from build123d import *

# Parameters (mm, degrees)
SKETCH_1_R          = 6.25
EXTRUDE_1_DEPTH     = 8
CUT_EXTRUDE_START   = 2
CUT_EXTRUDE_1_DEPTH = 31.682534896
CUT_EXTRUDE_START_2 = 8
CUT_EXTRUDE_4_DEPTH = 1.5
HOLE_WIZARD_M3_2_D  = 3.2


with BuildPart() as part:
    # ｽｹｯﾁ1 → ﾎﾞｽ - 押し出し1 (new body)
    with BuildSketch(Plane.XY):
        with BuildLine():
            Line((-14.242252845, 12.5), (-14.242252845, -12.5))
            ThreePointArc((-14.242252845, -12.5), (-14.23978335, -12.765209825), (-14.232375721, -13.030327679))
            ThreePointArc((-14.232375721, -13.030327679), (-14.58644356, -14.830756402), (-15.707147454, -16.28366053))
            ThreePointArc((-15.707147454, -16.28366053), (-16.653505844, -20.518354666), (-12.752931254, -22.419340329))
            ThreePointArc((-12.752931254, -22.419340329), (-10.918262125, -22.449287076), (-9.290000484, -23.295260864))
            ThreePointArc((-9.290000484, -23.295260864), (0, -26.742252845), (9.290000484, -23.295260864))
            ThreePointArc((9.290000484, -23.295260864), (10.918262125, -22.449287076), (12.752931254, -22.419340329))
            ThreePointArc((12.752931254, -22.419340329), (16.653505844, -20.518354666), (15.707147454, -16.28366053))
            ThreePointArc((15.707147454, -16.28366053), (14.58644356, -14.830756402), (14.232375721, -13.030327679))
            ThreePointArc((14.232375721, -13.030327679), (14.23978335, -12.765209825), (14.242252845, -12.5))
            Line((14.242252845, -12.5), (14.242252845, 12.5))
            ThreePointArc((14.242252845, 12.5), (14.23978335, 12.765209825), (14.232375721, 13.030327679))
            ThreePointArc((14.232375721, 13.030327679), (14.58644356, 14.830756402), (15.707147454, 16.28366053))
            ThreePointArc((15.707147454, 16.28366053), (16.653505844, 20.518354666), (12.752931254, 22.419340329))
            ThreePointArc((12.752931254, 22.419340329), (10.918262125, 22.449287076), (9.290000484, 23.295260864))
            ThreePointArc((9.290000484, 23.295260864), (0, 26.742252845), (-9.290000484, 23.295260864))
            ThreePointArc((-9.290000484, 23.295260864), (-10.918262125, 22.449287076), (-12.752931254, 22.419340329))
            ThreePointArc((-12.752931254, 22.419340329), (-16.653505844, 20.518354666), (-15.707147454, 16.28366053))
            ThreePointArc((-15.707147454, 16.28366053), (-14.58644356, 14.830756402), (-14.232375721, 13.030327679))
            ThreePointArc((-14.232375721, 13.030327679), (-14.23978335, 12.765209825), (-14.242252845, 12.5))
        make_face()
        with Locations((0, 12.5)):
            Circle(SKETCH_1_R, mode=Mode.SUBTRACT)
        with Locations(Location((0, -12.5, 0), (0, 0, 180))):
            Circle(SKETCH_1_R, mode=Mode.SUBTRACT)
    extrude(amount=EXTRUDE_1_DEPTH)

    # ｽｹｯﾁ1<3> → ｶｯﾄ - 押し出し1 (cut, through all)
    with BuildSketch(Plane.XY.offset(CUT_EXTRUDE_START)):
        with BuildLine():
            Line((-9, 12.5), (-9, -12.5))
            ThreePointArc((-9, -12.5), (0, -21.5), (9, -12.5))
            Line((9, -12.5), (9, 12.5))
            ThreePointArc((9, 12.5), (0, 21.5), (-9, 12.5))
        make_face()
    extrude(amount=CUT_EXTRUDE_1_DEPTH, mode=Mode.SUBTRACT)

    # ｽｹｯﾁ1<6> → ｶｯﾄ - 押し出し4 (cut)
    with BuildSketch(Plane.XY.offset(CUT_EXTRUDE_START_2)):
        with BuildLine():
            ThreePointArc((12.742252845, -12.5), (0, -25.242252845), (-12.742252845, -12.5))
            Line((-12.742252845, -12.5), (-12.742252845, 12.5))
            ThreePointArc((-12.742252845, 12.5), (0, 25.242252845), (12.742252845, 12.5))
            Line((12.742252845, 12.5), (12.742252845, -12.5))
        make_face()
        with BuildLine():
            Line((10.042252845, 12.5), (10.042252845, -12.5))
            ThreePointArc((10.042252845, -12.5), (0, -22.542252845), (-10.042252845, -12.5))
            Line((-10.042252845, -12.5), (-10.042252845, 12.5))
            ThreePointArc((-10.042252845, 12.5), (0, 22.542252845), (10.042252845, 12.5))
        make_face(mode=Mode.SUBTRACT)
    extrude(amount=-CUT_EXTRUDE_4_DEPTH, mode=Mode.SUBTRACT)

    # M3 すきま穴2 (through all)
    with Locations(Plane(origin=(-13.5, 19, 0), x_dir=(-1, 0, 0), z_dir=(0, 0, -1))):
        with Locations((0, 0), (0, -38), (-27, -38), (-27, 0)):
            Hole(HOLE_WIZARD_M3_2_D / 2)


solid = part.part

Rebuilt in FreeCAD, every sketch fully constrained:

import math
import FreeCAD as App
import Part
import Sketcher

V = App.Vector
Q = App.Units.Quantity

doc = App.newDocument("Part")
params = doc.addObject("Spreadsheet::Sheet", "Params")
for row, (alias, value) in enumerate([
    ("sketch1_radius", "4 mm"),
    ("sketch1_diameter", "12.5 mm"),
    ("sketch1_radius2", "3.5 mm"),
    ("sketch1_height", "25 mm"),
    ("pad1_length", "8 mm"),
    ("sketch2_radius", "9 mm"),
    ("sketch2_height", "25 mm"),
    ("sketch3_height", "25 mm"),
    ("pocket2_length", "1.5 mm"),
    ("sketch4_diameter", "3.2 mm"),
    ("hole_diameter", "3.2 mm"),
], start=1):
    params.set(f"A{row}", alias)
    params.set(f"B{row}", "=" + value)
    params.setAlias(f"B{row}", alias)

body = doc.addObject("PartDesign::Body", "Body")

# Sketch on XY plane
sketch1 = doc.addObject("Sketcher::SketchObject", "Sketch")
body.addObject(sketch1)
sketch1.AttachmentSupport = (doc.XY_Plane, [""])
sketch1.MapMode = "FlatFace"
sketch1.addGeometry([
    Part.LineSegment(V(-14.2, 12.5, 0), V(-14.2, -12.5, 0)),  # 0
    Part.ArcOfCircle(Part.Circle(V(0, -12.5, 0), V(0, 0, 1), 14.2), math.radians(180), math.radians(182.13)),  # 1
    Part.ArcOfCircle(Part.Circle(V(-18.2, -13.2, 0), V(0, 0, 1), 4), math.radians(-51), math.radians(2)),  # 2
    Part.ArcOfCircle(Part.Circle(V(-13.5, -19, 0), V(0, 0, 1), 3.5), math.radians(129), math.radians(282)),  # 3
    Part.ArcOfCircle(Part.Circle(V(-11.9, -26.3, 0), V(0, 0, 1), 4), math.radians(49), math.radians(102)),  # 4
    Part.ArcOfCircle(Part.Circle(V(0, -12.5, 0), V(0, 0, 1), 14.2), math.radians(-131), math.radians(-49)),  # 5
    Part.ArcOfCircle(Part.Circle(V(11.9, -26.3, 0), V(0, 0, 1), 4), math.radians(78), math.radians(131)),  # 6
    Part.ArcOfCircle(Part.Circle(V(13.5, -19, 0), V(0, 0, 1), 3.5), math.radians(-102), math.radians(51)),  # 7
    Part.ArcOfCircle(Part.Circle(V(18.2, -13.2, 0), V(0, 0, 1), 4), math.radians(178), math.radians(231)),  # 8
    Part.ArcOfCircle(Part.Circle(V(0, -12.5, 0), V(0, 0, 1), 14.2), math.radians(-2.13), math.radians(0)),  # 9
    Part.LineSegment(V(14.2, -12.5, 0), V(14.2, 12.5, 0)),  # 10
    Part.ArcOfCircle(Part.Circle(V(0, 12.5, 0), V(0, 0, 1), 14.2), math.radians(0), math.radians(2.13)),  # 11
    Part.ArcOfCircle(Part.Circle(V(18.2, 13.2, 0), V(0, 0, 1), 4), math.radians(129), math.radians(182)),  # 12
    Part.ArcOfCircle(Part.Circle(V(13.5, 19, 0), V(0, 0, 1), 3.5), math.radians(-51), math.radians(102)),  # 13
    Part.ArcOfCircle(Part.Circle(V(11.9, 26.3, 0), V(0, 0, 1), 4), math.radians(-131), math.radians(-78)),  # 14
    Part.ArcOfCircle(Part.Circle(V(0, 12.5, 0), V(0, 0, 1), 14.2), math.radians(49), math.radians(131)),  # 15
    Part.ArcOfCircle(Part.Circle(V(-11.9, 26.3, 0), V(0, 0, 1), 4), math.radians(-102), math.radians(-49)),  # 16
    Part.ArcOfCircle(Part.Circle(V(-13.5, 19, 0), V(0, 0, 1), 3.5), math.radians(78), math.radians(231)),  # 17
    Part.ArcOfCircle(Part.Circle(V(-18.2, 13.2, 0), V(0, 0, 1), 4), math.radians(-2), math.radians(51)),  # 18
    Part.ArcOfCircle(Part.Circle(V(0, 12.5, 0), V(0, 0, 1), 14.2), math.radians(177.87), math.radians(180)),  # 19
    Part.Circle(V(0, -12.5, 0), V(0, 0, 1), 6.2),  # 20
    Part.Circle(V(0, 12.5, 0), V(0, 0, 1), 6.2),  # 21
], False)
sketch1.addConstraint([
    Sketcher.Constraint("Tangent", 0, 2, 1, 1),
    Sketcher.Constraint("Tangent", 1, 2, 2, 2),
    Sketcher.Constraint("Tangent", 2, 1, 3, 1),
    Sketcher.Constraint("Tangent", 3, 2, 4, 2),
    Sketcher.Constraint("Tangent", 4, 1, 5, 1),
    Sketcher.Constraint("Tangent", 5, 2, 6, 2),
    Sketcher.Constraint("Tangent", 6, 1, 7, 1),
    Sketcher.Constraint("Tangent", 7, 2, 8, 2),
    Sketcher.Constraint("Tangent", 8, 1, 9, 1),
    Sketcher.Constraint("Tangent", 9, 2, 10, 1),
    Sketcher.Constraint("Tangent", 10, 2, 11, 1),
    Sketcher.Constraint("Tangent", 11, 2, 12, 2),
    Sketcher.Constraint("Tangent", 12, 1, 13, 1),
    Sketcher.Constraint("Tangent", 13, 2, 14, 2),
    Sketcher.Constraint("Tangent", 14, 1, 15, 1),
    Sketcher.Constraint("Tangent", 15, 2, 16, 2),
    Sketcher.Constraint("Tangent", 16, 1, 17, 1),
    Sketcher.Constraint("Tangent", 17, 2, 18, 2),
    Sketcher.Constraint("Tangent", 18, 1, 19, 1),
    Sketcher.Constraint("Tangent", 19, 2, 0, 1),
    Sketcher.Constraint("Vertical", 0),
    Sketcher.Constraint("Vertical", 10),
    Sketcher.Constraint("Coincident", 5, 3, 1, 3),
    Sketcher.Constraint("Coincident", 9, 3, 1, 3),
    Sketcher.Constraint("Coincident", 15, 3, 11, 3),
    Sketcher.Constraint("Coincident", 19, 3, 11, 3),
    Sketcher.Constraint("Coincident", 20, 3, 1, 3),
    Sketcher.Constraint("Coincident", 21, 3, 11, 3),
    Sketcher.Constraint("Equal", 2, 4),
    Sketcher.Constraint("Equal", 1, 5),
    Sketcher.Constraint("Equal", 4, 6),
    Sketcher.Constraint("Equal", 3, 7),
    Sketcher.Constraint("Equal", 6, 8),
    Sketcher.Constraint("Equal", 5, 9),
    Sketcher.Constraint("Equal", 9, 11),
    Sketcher.Constraint("Equal", 8, 12),
    Sketcher.Constraint("Equal", 7, 13),
    Sketcher.Constraint("Equal", 12, 14),
    Sketcher.Constraint("Equal", 11, 15),
    Sketcher.Constraint("Equal", 14, 16),
    Sketcher.Constraint("Equal", 13, 17),
    Sketcher.Constraint("Equal", 16, 18),
    Sketcher.Constraint("Equal", 20, 21),
    Sketcher.Constraint("Symmetric", 1, 3, 11, 3, -1, 1),
    Sketcher.Constraint("Symmetric", 3, 3, 13, 3, -1, 1),
    Sketcher.Constraint("Symmetric", 7, 3, 17, 3, -1, 1),
    Sketcher.Constraint("Symmetric", 3, 3, 7, 3, -2),
    Sketcher.Constraint("Radius", 2, Q("4 mm")),
    Sketcher.Constraint("Diameter", 20, Q("12.5 mm")),
    Sketcher.Constraint("Radius", 3, Q("3.5 mm")),
    Sketcher.Constraint("DistanceY", 0, 2, 0, 1, Q("25 mm")),
    Sketcher.Constraint("DistanceY", 3, 3, -1, 1, Q("19 mm")),
    Sketcher.Constraint("DistanceX", 3, 3, 7, 3, Q("27 mm")),
    Sketcher.Constraint("DistanceX", 4, 1, -1, 1, Q("9.29 mm")),
])
sketch1.setExpression("Constraints[47]", "Params.sketch1_radius")
sketch1.setExpression("Constraints[48]", "Params.sketch1_diameter")
sketch1.setExpression("Constraints[49]", "Params.sketch1_radius2")
sketch1.setExpression("Constraints[50]", "Params.sketch1_height")
pad1 = doc.addObject("PartDesign::Pad", "Pad")
body.addObject(pad1)
pad1.Profile = sketch1
pad1.setExpression("Length", "Params.pad1_length")

# Sketch on XY plane
sketch2 = doc.addObject("Sketcher::SketchObject", "Sketch001")
body.addObject(sketch2)
sketch2.AttachmentSupport = (doc.XY_Plane, [""])
sketch2.MapMode = "FlatFace"
sketch2.AttachmentOffset = App.Placement(V(0, 0, 2), App.Rotation())
sketch2.addGeometry([
    Part.LineSegment(V(-9, 12, 0), V(-9, -12, 0)),
    Part.ArcOfCircle(Part.Circle(V(0, -12, 0), V(0, 0, 1), 9), math.radians(180), math.radians(360)),
    Part.LineSegment(V(9, -12, 0), V(9, 12, 0)),
    Part.ArcOfCircle(Part.Circle(V(0, 12, 0), V(0, 0, 1), 9), math.radians(0), math.radians(180)),
], False)
sketch2.addConstraint([
    Sketcher.Constraint("Tangent", 0, 2, 1, 1),
    Sketcher.Constraint("Tangent", 1, 2, 2, 1),
    Sketcher.Constraint("Tangent", 2, 2, 3, 1),
    Sketcher.Constraint("Tangent", 3, 2, 0, 1),
    Sketcher.Constraint("Vertical", 0),
    Sketcher.Constraint("Vertical", 2),
    Sketcher.Constraint("Symmetric", 1, 3, 3, 3, -1, 1),
    Sketcher.Constraint("Radius", 1, Q("9 mm")),
    Sketcher.Constraint("DistanceY", 0, 2, 0, 1, Q("25 mm")),
])
sketch2.setExpression("Constraints[7]", "Params.sketch2_radius")
sketch2.setExpression("Constraints[8]", "Params.sketch2_height")
pocket1 = doc.addObject("PartDesign::Pocket", "Pocket")
body.addObject(pocket1)
pocket1.Profile = sketch2
pocket1.Type = "ThroughAll"
pocket1.Reversed = True

# Sketch on XY plane
sketch3 = doc.addObject("Sketcher::SketchObject", "Sketch002")
body.addObject(sketch3)
sketch3.AttachmentSupport = (doc.XY_Plane, [""])
sketch3.MapMode = "FlatFace"
sketch3.AttachmentOffset = App.Placement(V(0, 0, 8), App.Rotation())
sketch3.addGeometry([
    Part.ArcOfCircle(Part.Circle(V(0, -12, 0), V(0, 0, 1), 13), math.radians(180), math.radians(360)),  # 0
    Part.LineSegment(V(13, -12, 0), V(13, 12, 0)),  # 1
    Part.ArcOfCircle(Part.Circle(V(0, 12, 0), V(0, 0, 1), 13), math.radians(0), math.radians(180)),  # 2
    Part.LineSegment(V(-13, 12, 0), V(-13, -12, 0)),  # 3
    Part.LineSegment(V(10, 12, 0), V(10, -12, 0)),  # 4
    Part.ArcOfCircle(Part.Circle(V(0, -12, 0), V(0, 0, 1), 10), math.radians(180), math.radians(360)),  # 5
    Part.LineSegment(V(-10, -12, 0), V(-10, 12, 0)),  # 6
    Part.ArcOfCircle(Part.Circle(V(0, 12, 0), V(0, 0, 1), 10), math.radians(0), math.radians(180)),  # 7
], False)
sketch3.addConstraint([
    Sketcher.Constraint("Tangent", 0, 2, 1, 1),
    Sketcher.Constraint("Tangent", 1, 2, 2, 1),
    Sketcher.Constraint("Tangent", 2, 2, 3, 1),
    Sketcher.Constraint("Tangent", 3, 2, 0, 1),
    Sketcher.Constraint("Tangent", 4, 2, 5, 2),
    Sketcher.Constraint("Tangent", 5, 1, 6, 1),
    Sketcher.Constraint("Tangent", 6, 2, 7, 2),
    Sketcher.Constraint("Tangent", 7, 1, 4, 1),
    Sketcher.Constraint("Vertical", 1),
    Sketcher.Constraint("Vertical", 3),
    Sketcher.Constraint("Vertical", 4),
    Sketcher.Constraint("Vertical", 6),
    Sketcher.Constraint("Coincident", 5, 3, 0, 3),
    Sketcher.Constraint("Symmetric", 0, 3, 2, 3, -1, 1),
    Sketcher.Constraint("Horizontal", 7, 3, 1, 2),
    Sketcher.Constraint("DistanceY", 1, 1, 1, 2, Q("25 mm")),
    Sketcher.Constraint("DistanceX", 4, 2, 0, 2, Q("2.7 mm")),
    Sketcher.Constraint("Radius", 0, Q("12.742253 mm")),
])
sketch3.setExpression("Constraints[15]", "Params.sketch3_height")
pocket2 = doc.addObject("PartDesign::Pocket", "Pocket001")
body.addObject(pocket2)
pocket2.Profile = sketch3
pocket2.setExpression("Length", "Params.pocket2_length")

# Sketch on XY plane
sketch4 = doc.addObject("Sketcher::SketchObject", "Sketch003")
body.addObject(sketch4)
sketch4.AttachmentSupport = (doc.XY_Plane, [""])
sketch4.MapMode = "FlatFace"
sketch4.addGeometry([
    Part.Circle(V(-13.5, 19, 0), V(0, 0, 1), 1.6),
    Part.Circle(V(-13.5, -19, 0), V(0, 0, 1), 1.6),
    Part.Circle(V(13.5, -19, 0), V(0, 0, 1), 1.6),
    Part.Circle(V(13.5, 19, 0), V(0, 0, 1), 1.6),
], False)
sketch4.addConstraint([
    Sketcher.Constraint("Equal", 0, 1),
    Sketcher.Constraint("Equal", 1, 2),
    Sketcher.Constraint("Equal", 2, 3),
    Sketcher.Constraint("Symmetric", 0, 3, 2, 3, -1, 1),
    Sketcher.Constraint("Symmetric", 1, 3, 3, 3, -1, 1),
    Sketcher.Constraint("Symmetric", 1, 3, 2, 3, -2),
    Sketcher.Constraint("Diameter", 0, Q("3.2 mm")),
    Sketcher.Constraint("DistanceY", -1, 1, 0, 3, Q("19 mm")),
    Sketcher.Constraint("DistanceX", 1, 3, 2, 3, Q("27 mm")),
])
sketch4.setExpression("Constraints[6]", "Params.sketch4_diameter")
doc.recompute()
hole = doc.addObject("PartDesign::Hole", "Hole")
body.addObject(hole)
hole.Profile = sketch4
hole.ThreadType = "None"
hole.setExpression("Diameter", "Params.hole_diameter")
hole.DepthType = "ThroughAll"
hole.Reversed = True

doc.recompute()
